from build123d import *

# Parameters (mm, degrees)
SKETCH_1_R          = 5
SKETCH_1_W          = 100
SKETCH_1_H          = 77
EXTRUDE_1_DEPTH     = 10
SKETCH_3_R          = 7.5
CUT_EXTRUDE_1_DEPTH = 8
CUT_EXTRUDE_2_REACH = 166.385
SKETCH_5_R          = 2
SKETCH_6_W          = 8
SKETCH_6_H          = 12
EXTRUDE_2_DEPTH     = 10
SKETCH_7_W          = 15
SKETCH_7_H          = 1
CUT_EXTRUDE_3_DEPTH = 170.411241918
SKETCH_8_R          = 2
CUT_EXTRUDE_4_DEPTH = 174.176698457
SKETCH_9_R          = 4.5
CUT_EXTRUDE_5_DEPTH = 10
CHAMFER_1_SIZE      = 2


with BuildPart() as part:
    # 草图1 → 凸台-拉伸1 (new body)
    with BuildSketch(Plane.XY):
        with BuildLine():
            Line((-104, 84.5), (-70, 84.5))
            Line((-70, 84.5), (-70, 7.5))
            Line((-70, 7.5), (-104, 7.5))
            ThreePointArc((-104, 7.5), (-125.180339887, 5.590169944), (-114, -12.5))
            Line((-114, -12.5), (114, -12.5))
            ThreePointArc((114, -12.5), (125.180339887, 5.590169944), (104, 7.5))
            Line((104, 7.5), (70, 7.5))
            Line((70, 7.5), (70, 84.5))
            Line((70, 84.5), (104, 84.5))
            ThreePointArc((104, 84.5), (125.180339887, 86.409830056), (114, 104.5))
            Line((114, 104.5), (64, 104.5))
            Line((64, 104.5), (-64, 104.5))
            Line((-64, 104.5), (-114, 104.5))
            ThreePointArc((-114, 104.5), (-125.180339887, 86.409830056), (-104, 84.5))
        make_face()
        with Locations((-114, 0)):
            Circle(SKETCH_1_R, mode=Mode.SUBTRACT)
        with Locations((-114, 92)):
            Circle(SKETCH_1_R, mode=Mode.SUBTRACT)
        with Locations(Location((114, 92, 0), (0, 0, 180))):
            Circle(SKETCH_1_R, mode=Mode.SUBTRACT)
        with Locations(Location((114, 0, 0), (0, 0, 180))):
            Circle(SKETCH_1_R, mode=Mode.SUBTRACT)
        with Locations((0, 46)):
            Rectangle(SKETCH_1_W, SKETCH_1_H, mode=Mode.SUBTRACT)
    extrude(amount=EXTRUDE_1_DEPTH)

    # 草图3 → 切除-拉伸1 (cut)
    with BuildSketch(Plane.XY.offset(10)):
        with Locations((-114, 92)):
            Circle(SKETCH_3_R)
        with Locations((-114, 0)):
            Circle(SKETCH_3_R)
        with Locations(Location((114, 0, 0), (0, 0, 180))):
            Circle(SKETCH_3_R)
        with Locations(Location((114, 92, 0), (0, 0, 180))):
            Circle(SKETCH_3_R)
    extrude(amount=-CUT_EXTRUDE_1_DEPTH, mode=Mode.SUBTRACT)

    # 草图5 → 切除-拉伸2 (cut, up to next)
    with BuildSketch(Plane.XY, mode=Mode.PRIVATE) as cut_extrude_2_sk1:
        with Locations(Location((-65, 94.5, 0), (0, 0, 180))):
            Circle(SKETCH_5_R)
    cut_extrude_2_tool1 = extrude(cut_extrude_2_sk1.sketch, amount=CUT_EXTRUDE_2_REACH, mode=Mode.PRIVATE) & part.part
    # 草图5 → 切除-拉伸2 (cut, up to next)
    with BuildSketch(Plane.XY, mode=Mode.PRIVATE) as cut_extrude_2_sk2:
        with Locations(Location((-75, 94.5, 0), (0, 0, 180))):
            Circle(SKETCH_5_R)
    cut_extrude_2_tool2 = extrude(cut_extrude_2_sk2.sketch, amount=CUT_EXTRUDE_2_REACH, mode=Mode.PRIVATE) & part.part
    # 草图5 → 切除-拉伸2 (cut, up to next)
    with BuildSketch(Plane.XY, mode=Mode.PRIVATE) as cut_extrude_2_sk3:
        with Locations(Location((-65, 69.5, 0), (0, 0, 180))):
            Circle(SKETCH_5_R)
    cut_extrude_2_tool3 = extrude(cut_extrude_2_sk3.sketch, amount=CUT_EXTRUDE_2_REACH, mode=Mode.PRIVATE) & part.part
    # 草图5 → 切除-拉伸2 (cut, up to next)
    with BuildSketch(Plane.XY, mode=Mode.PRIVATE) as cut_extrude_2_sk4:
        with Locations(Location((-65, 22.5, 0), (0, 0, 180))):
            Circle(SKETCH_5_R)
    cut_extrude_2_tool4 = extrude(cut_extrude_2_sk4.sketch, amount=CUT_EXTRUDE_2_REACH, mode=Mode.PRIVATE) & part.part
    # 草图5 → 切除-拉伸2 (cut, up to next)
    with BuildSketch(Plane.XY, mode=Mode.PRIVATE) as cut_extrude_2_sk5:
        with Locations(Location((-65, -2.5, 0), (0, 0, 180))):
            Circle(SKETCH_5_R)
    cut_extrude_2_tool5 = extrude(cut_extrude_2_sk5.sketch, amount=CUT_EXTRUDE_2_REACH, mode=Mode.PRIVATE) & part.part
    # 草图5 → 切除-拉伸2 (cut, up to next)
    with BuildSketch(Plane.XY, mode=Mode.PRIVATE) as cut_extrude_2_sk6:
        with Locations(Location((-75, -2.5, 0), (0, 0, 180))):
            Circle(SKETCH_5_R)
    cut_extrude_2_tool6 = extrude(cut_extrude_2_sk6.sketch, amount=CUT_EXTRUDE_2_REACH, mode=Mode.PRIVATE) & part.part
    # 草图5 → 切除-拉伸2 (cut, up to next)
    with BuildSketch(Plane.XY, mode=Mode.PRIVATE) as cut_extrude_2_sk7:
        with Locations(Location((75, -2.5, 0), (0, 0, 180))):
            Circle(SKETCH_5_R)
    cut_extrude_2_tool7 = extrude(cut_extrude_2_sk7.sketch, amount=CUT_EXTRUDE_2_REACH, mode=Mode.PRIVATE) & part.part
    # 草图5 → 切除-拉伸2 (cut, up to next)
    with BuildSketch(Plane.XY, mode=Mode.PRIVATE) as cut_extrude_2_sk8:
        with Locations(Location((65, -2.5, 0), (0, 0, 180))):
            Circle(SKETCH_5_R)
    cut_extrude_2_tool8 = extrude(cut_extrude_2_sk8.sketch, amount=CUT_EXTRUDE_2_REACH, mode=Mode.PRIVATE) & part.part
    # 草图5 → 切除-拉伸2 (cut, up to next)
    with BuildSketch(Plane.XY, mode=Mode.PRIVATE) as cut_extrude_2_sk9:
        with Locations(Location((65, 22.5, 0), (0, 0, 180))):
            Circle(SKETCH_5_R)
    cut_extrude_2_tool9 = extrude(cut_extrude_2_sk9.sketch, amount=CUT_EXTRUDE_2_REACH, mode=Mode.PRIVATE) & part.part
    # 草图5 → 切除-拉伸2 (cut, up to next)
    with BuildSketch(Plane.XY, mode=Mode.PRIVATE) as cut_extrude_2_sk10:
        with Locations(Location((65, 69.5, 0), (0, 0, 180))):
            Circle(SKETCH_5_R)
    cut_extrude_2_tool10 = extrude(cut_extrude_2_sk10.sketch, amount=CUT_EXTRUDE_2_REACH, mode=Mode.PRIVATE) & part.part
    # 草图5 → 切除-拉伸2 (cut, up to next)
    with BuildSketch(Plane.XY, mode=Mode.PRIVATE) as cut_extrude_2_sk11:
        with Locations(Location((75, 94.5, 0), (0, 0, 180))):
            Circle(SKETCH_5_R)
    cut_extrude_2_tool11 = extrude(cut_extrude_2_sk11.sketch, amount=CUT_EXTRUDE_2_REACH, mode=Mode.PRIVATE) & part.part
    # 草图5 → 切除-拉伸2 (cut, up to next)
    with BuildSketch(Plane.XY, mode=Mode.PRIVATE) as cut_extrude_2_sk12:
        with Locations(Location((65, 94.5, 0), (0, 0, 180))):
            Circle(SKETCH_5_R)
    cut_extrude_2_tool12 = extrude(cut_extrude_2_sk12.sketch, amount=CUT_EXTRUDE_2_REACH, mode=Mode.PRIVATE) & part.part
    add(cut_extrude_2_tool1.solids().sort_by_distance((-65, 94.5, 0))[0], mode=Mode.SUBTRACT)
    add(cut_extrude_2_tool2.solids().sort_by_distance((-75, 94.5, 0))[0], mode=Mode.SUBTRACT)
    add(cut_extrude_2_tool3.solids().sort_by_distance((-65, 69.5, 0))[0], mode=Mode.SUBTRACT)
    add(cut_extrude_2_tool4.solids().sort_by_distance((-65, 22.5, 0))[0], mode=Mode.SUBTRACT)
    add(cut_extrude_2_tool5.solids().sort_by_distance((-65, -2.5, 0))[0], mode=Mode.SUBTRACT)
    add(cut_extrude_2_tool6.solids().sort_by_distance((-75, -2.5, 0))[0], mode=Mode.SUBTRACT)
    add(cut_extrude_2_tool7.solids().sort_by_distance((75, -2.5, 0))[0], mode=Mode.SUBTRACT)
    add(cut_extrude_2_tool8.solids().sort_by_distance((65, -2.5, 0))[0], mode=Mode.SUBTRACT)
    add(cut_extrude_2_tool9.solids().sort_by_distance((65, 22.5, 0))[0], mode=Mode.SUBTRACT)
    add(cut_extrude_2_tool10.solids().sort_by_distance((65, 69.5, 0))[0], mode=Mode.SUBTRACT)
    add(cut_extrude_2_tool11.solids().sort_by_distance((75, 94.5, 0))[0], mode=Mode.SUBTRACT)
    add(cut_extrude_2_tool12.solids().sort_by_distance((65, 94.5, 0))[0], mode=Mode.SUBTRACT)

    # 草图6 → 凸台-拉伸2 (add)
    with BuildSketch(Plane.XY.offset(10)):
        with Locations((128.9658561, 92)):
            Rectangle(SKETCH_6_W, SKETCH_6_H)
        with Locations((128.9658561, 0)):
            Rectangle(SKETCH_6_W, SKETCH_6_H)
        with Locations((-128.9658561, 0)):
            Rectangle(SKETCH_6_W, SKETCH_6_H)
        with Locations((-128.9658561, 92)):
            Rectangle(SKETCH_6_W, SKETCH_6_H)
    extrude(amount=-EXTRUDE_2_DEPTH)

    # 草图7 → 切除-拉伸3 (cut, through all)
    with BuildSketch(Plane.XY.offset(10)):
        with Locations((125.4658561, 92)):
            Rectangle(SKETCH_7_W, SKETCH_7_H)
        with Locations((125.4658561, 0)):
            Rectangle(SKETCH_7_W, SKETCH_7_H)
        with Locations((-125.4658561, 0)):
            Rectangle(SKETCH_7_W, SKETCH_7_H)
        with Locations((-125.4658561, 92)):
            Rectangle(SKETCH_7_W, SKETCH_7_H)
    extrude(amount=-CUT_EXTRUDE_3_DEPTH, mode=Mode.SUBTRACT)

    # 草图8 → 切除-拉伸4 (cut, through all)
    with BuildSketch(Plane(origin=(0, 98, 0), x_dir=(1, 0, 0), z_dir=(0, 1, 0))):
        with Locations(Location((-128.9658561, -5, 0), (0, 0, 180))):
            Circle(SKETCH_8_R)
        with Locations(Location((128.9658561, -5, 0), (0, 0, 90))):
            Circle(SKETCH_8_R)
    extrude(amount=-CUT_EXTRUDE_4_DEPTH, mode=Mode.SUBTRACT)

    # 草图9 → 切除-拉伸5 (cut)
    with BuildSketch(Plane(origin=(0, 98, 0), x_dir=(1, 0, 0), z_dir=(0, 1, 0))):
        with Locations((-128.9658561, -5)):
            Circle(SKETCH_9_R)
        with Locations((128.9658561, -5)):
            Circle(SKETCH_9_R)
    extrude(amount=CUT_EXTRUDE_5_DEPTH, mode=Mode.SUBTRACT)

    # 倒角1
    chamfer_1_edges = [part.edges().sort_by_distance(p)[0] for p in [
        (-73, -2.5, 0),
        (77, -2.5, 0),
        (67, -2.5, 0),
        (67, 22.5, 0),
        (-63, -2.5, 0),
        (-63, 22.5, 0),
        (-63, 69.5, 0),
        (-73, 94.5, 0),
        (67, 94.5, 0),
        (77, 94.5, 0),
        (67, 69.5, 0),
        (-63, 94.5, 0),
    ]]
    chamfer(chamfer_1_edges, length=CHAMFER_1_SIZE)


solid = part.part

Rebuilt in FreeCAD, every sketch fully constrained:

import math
import FreeCAD as App
import Part
import Sketcher

V = App.Vector


def edges_at(feature, points):
    """Names of the edges that pass closest to the given points."""
    edges = feature.Shape.Edges
    near = lambda p: min(range(len(edges)), key=lambda i: edges[i].distToShape(Part.Vertex(*p))[0])
    return sorted({f"Edge{near(p) + 1}" for p in points})


def add_polygon(sketch, points):
    """Adds a closed chain of lines whose ends are joined by coincident constraints."""
    first, n = sketch.GeometryCount, len(points)
    for a, b in zip(points, points[1:] + points[:1]):
        sketch.addGeometry(Part.LineSegment(App.Vector(*a, 0), App.Vector(*b, 0)), False)
    for i in range(n):
        sketch.addConstraint(Sketcher.Constraint("Coincident", first + i, 2, first + (i + 1) % n, 1))

doc = App.newDocument("Part")
body = doc.addObject("PartDesign::Body", "Body")

# Sketch on XY plane
sketch1 = doc.addObject("Sketcher::SketchObject", "Sketch")
body.addObject(sketch1)
sketch1.AttachmentSupport = (doc.XY_Plane, [""])
sketch1.MapMode = "FlatFace"
sketch1.addGeometry(Part.LineSegment(V(-104, 84, 0), V(-70, 84, 0)), False)  # 0
sketch1.addGeometry(Part.LineSegment(V(-70, 84, 0), V(-70, 8, 0)), False)  # 1
sketch1.addGeometry(Part.LineSegment(V(-70, 8, 0), V(-104, 8, 0)), False)  # 2
sketch1.addGeometry(Part.ArcOfCircle(Part.Circle(V(-114, 0, 0), V(0, 0, 1), 12), math.radians(37), math.radians(270)), False)  # 3
sketch1.addGeometry(Part.LineSegment(V(-114, -12, 0), V(114, -12, 0)), False)  # 4
sketch1.addGeometry(Part.ArcOfCircle(Part.Circle(V(114, 0, 0), V(0, 0, 1), 12), math.radians(-90), math.radians(143)), False)  # 5
sketch1.addGeometry(Part.LineSegment(V(104, 8, 0), V(70, 8, 0)), False)  # 6
sketch1.addGeometry(Part.LineSegment(V(70, 8, 0), V(70, 84, 0)), False)  # 7
sketch1.addGeometry(Part.LineSegment(V(70, 84, 0), V(104, 84, 0)), False)  # 8
sketch1.addGeometry(Part.ArcOfCircle(Part.Circle(V(114, 92, 0), V(0, 0, 1), 12), math.radians(-143), math.radians(90)), False)  # 9
sketch1.addGeometry(Part.LineSegment(V(114, 104, 0), V(-114, 104, 0)), False)  # 10
sketch1.addGeometry(Part.ArcOfCircle(Part.Circle(V(-114, 92, 0), V(0, 0, 1), 12), math.radians(90), math.radians(323)), False)  # 11
sketch1.addGeometry(Part.Circle(V(-114, 0, 0), V(0, 0, 1), 5), False)  # 12
sketch1.addGeometry(Part.Circle(V(114, 0, 0), V(0, 0, 1), 5), False)  # 13
sketch1.addGeometry(Part.Circle(V(-114, 92, 0), V(0, 0, 1), 5), False)  # 14
add_polygon(sketch1, [(50, 8), (-50, 8), (-50, 84), (50, 84)])  # lines 15-18
sketch1.addGeometry(Part.Circle(V(114, 92, 0), V(0, 0, 1), 5), False)  # 19
sketch1.addConstraint([
    Sketcher.Constraint("Coincident", 0, 2, 1, 1),
    Sketcher.Constraint("Coincident", 1, 2, 2, 1),
    Sketcher.Constraint("Coincident", 2, 2, 3, 1),
    Sketcher.Constraint("Tangent", 3, 2, 4, 1),
    Sketcher.Constraint("Tangent", 4, 2, 5, 1),
    Sketcher.Constraint("Coincident", 5, 2, 6, 1),
    Sketcher.Constraint("Coincident", 6, 2, 7, 1),
    Sketcher.Constraint("Coincident", 7, 2, 8, 1),
    Sketcher.Constraint("Coincident", 8, 2, 9, 1),
    Sketcher.Constraint("Tangent", 9, 2, 10, 1),
    Sketcher.Constraint("Tangent", 10, 2, 11, 1),
    Sketcher.Constraint("Coincident", 11, 2, 0, 1),
    Sketcher.Constraint("Horizontal", 0),
    Sketcher.Constraint("Vertical", 1),
    Sketcher.Constraint("Horizontal", 2),
    Sketcher.Constraint("Horizontal", 4),
    Sketcher.Constraint("Horizontal", 6),
    Sketcher.Constraint("Vertical", 7),
    Sketcher.Constraint("Horizontal", 8),
    Sketcher.Constraint("Horizontal", 10),
    Sketcher.Constraint("Horizontal", 15),
    Sketcher.Constraint("Vertical", 16),
    Sketcher.Constraint("Horizontal", 17),
    Sketcher.Constraint("Vertical", 18),
    Sketcher.Constraint("Coincident", 12, 3, 3, 3),
    Sketcher.Constraint("Coincident", 13, 3, 5, 3),
    Sketcher.Constraint("Coincident", 14, 3, 11, 3),
    Sketcher.Constraint("Coincident", 19, 3, 9, 3),
    Sketcher.Constraint("Equal", 3, 5),
    Sketcher.Constraint("Equal", 5, 9),
    Sketcher.Constraint("Equal", 9, 11),
    Sketcher.Constraint("Equal", 12, 13),
    Sketcher.Constraint("Equal", 13, 14),
    Sketcher.Constraint("Equal", 14, 19),
    Sketcher.Constraint("Symmetric", 3, 3, 5, 3, -1, 1),
    Sketcher.Constraint("Symmetric", 1, 2, 6, 2, -2),
    Sketcher.Constraint("Symmetric", 8, 2, 11, 2, -2),
    Sketcher.Constraint("Horizontal", 6, 2, 15, 2),
    Sketcher.Constraint("Horizontal", 11, 2, 16, 2),
    Sketcher.Constraint("Vertical", 5, 3, 9, 3),
    Sketcher.Constraint("Vertical", 5, 2, 8, 2),
    Sketcher.Constraint("Diameter", 12, 10.0),
    Sketcher.Constraint("Radius", 3, 12.5),
    Sketcher.Constraint("DistanceX", 0, 1, 0, 2, 34.0),
    Sketcher.Constraint("DistanceX", 4, 1, 4, 2, 228.0),
    Sketcher.Constraint("DistanceX", 15, 2, 15, 1, 100.0),
    Sketcher.Constraint("DistanceY", 1, 2, 1, 1, 77.0),
    Sketcher.Constraint("DistanceY", -1, 1, 9, 3, 92.0),
    Sketcher.Constraint("DistanceX", 15, 2, -1, 1, 50.0),
])
pad1 = doc.addObject("PartDesign::Pad", "Pad")
body.addObject(pad1)
pad1.Profile = sketch1
pad1.Length = 10

# Sketch on XY plane
sketch2 = doc.addObject("Sketcher::SketchObject", "Sketch001")
body.addObject(sketch2)
sketch2.AttachmentSupport = (doc.XY_Plane, [""])
sketch2.MapMode = "FlatFace"
sketch2.AttachmentOffset = App.Placement(V(0, 0, 10), App.Rotation())
sketch2.addGeometry([
    Part.Circle(V(-114, 92, 0), V(0, 0, 1), 8),
    Part.Circle(V(-114, 0, 0), V(0, 0, 1), 8),
    Part.Circle(V(114, 0, 0), V(0, 0, 1), 8),
    Part.Circle(V(114, 92, 0), V(0, 0, 1), 8),
], False)
sketch2.addConstraint([
    Sketcher.Constraint("Equal", 0, 1),
    Sketcher.Constraint("Equal", 1, 2),
    Sketcher.Constraint("Equal", 2, 3),
    Sketcher.Constraint("Symmetric", 1, 3, 2, 3, -1, 1),
    Sketcher.Constraint("Symmetric", 0, 3, 3, 3, -2),
    Sketcher.Constraint("PointOnObject", 1, 3, -1),
    Sketcher.Constraint("Vertical", 0, 3, 1, 3),
    Sketcher.Constraint("Diameter", 0, 15.0),
    Sketcher.Constraint("DistanceX", 0, 3, -1, 1, 114.0),
    Sketcher.Constraint("DistanceY", -1, 1, 0, 3, 92.0),
])
pocket1 = doc.addObject("PartDesign::Pocket", "Pocket")
body.addObject(pocket1)
pocket1.Profile = sketch2
pocket1.Length = 8

# Sketch on XY plane
sketch3 = doc.addObject("Sketcher::SketchObject", "Sketch002")
body.addObject(sketch3)
sketch3.AttachmentSupport = (doc.XY_Plane, [""])
sketch3.MapMode = "FlatFace"
sketch3.addGeometry(Part.Circle(V(-65, 94.5, 0), V(0, 0, 1), 2), False)
sketch3.addConstraint([
    Sketcher.Constraint("Diameter", 0, 4.0),
    Sketcher.Constraint("DistanceX", 0, 3, -1, 1, 65.0),
    Sketcher.Constraint("DistanceY", -1, 1, 0, 3, 94.5),
])
pocket2 = doc.addObject("PartDesign::Pocket", "Pocket001")
body.addObject(pocket2)
pocket2.Profile = sketch3
pocket2.Type = "UpToFirst"
pocket2.Reversed = True

# Sketch on XY plane
sketch4 = doc.addObject("Sketcher::SketchObject", "Sketch003")
body.addObject(sketch4)
sketch4.AttachmentSupport = (doc.XY_Plane, [""])
sketch4.MapMode = "FlatFace"
sketch4.addGeometry(Part.Circle(V(-75, 94.5, 0), V(0, 0, 1), 2), False)
sketch4.addConstraint([
    Sketcher.Constraint("Diameter", 0, 4.0),
    Sketcher.Constraint("DistanceX", 0, 3, -1, 1, 75.0),
    Sketcher.Constraint("DistanceY", -1, 1, 0, 3, 94.5),
])
pocket3 = doc.addObject("PartDesign::Pocket", "Pocket002")
body.addObject(pocket3)
pocket3.Profile = sketch4
pocket3.Type = "UpToFirst"
pocket3.Reversed = True

# Sketch on XY plane
sketch5 = doc.addObject("Sketcher::SketchObject", "Sketch004")
body.addObject(sketch5)
sketch5.AttachmentSupport = (doc.XY_Plane, [""])
sketch5.MapMode = "FlatFace"
sketch5.addGeometry(Part.Circle(V(-65, 69.5, 0), V(0, 0, 1), 2), False)
sketch5.addConstraint([
    Sketcher.Constraint("Diameter", 0, 4.0),
    Sketcher.Constraint("DistanceX", 0, 3, -1, 1, 65.0),
    Sketcher.Constraint("DistanceY", -1, 1, 0, 3, 69.5),
])
pocket4 = doc.addObject("PartDesign::Pocket", "Pocket003")
body.addObject(pocket4)
pocket4.Profile = sketch5
pocket4.Type = "UpToFirst"
pocket4.Reversed = True

# Sketch on XY plane
sketch6 = doc.addObject("Sketcher::SketchObject", "Sketch005")
body.addObject(sketch6)
sketch6.AttachmentSupport = (doc.XY_Plane, [""])
sketch6.MapMode = "FlatFace"
sketch6.addGeometry(Part.Circle(V(-65, 22.5, 0), V(0, 0, 1), 2), False)
sketch6.addConstraint([
    Sketcher.Constraint("Diameter", 0, 4.0),
    Sketcher.Constraint("DistanceX", 0, 3, -1, 1, 65.0),
    Sketcher.Constraint("DistanceY", -1, 1, 0, 3, 22.5),
])
pocket5 = doc.addObject("PartDesign::Pocket", "Pocket004")
body.addObject(pocket5)
pocket5.Profile = sketch6
pocket5.Type = "UpToFirst"
pocket5.Reversed = True

# Sketch on XY plane
sketch7 = doc.addObject("Sketcher::SketchObject", "Sketch006")
body.addObject(sketch7)
sketch7.AttachmentSupport = (doc.XY_Plane, [""])
sketch7.MapMode = "FlatFace"
sketch7.addGeometry(Part.Circle(V(-65, -2.5, 0), V(0, 0, 1), 2), False)
sketch7.addConstraint([
    Sketcher.Constraint("Diameter", 0, 4.0),
    Sketcher.Constraint("DistanceX", 0, 3, -1, 1, 65.0),
    Sketcher.Constraint("DistanceY", 0, 3, -1, 1, 2.5),
])
pocket6 = doc.addObject("PartDesign::Pocket", "Pocket005")
body.addObject(pocket6)
pocket6.Profile = sketch7
pocket6.Type = "UpToFirst"
pocket6.Reversed = True

# Sketch on XY plane
sketch8 = doc.addObject("Sketcher::SketchObject", "Sketch007")
body.addObject(sketch8)
sketch8.AttachmentSupport = (doc.XY_Plane, [""])
sketch8.MapMode = "FlatFace"
sketch8.addGeometry(Part.Circle(V(-75, -2.5, 0), V(0, 0, 1), 2), False)
sketch8.addConstraint([
    Sketcher.Constraint("Diameter", 0, 4.0),
    Sketcher.Constraint("DistanceX", 0, 3, -1, 1, 75.0),
    Sketcher.Constraint("DistanceY", 0, 3, -1, 1, 2.5),
])
pocket7 = doc.addObject("PartDesign::Pocket", "Pocket006")
body.addObject(pocket7)
pocket7.Profile = sketch8
pocket7.Type = "UpToFirst"
pocket7.Reversed = True

# Sketch on XY plane
sketch9 = doc.addObject("Sketcher::SketchObject", "Sketch008")
body.addObject(sketch9)
sketch9.AttachmentSupport = (doc.XY_Plane, [""])
sketch9.MapMode = "FlatFace"
sketch9.addGeometry(Part.Circle(V(75, -2.5, 0), V(0, 0, 1), 2), False)
sketch9.addConstraint([
    Sketcher.Constraint("Diameter", 0, 4.0),
    Sketcher.Constraint("DistanceX", -1, 1, 0, 3, 75.0),
    Sketcher.Constraint("DistanceY", 0, 3, -1, 1, 2.5),
])
pocket8 = doc.addObject("PartDesign::Pocket", "Pocket007")
body.addObject(pocket8)
pocket8.Profile = sketch9
pocket8.Type = "UpToFirst"
pocket8.Reversed = True

# Sketch on XY plane
sketch10 = doc.addObject("Sketcher::SketchObject", "Sketch009")
body.addObject(sketch10)
sketch10.AttachmentSupport = (doc.XY_Plane, [""])
sketch10.MapMode = "FlatFace"
sketch10.addGeometry(Part.Circle(V(65, -2.5, 0), V(0, 0, 1), 2), False)
sketch10.addConstraint([
    Sketcher.Constraint("Diameter", 0, 4.0),
    Sketcher.Constraint("DistanceX", -1, 1, 0, 3, 65.0),
    Sketcher.Constraint("DistanceY", 0, 3, -1, 1, 2.5),
])
pocket9 = doc.addObject("PartDesign::Pocket", "Pocket008")
body.addObject(pocket9)
pocket9.Profile = sketch10
pocket9.Type = "UpToFirst"
pocket9.Reversed = True

# Sketch on XY plane
sketch11 = doc.addObject("Sketcher::SketchObject", "Sketch010")
body.addObject(sketch11)
sketch11.AttachmentSupport = (doc.XY_Plane, [""])
sketch11.MapMode = "FlatFace"
sketch11.addGeometry(Part.Circle(V(65, 22.5, 0), V(0, 0, 1), 2), False)
sketch11.addConstraint([
    Sketcher.Constraint("Diameter", 0, 4.0),
    Sketcher.Constraint("DistanceX", -1, 1, 0, 3, 65.0),
    Sketcher.Constraint("DistanceY", -1, 1, 0, 3, 22.5),
])
pocket10 = doc.addObject("PartDesign::Pocket", "Pocket009")
body.addObject(pocket10)
pocket10.Profile = sketch11
pocket10.Type = "UpToFirst"
pocket10.Reversed = True

# Sketch on XY plane
sketch12 = doc.addObject("Sketcher::SketchObject", "Sketch011")
body.addObject(sketch12)
sketch12.AttachmentSupport = (doc.XY_Plane, [""])
sketch12.MapMode = "FlatFace"
sketch12.addGeometry(Part.Circle(V(65, 69.5, 0), V(0, 0, 1), 2), False)
sketch12.addConstraint([
    Sketcher.Constraint("Diameter", 0, 4.0),
    Sketcher.Constraint("DistanceX", -1, 1, 0, 3, 65.0),
    Sketcher.Constraint("DistanceY", -1, 1, 0, 3, 69.5),
])
pocket11 = doc.addObject("PartDesign::Pocket", "Pocket010")
body.addObject(pocket11)
pocket11.Profile = sketch12
pocket11.Type = "UpToFirst"
pocket11.Reversed = True

# Sketch on XY plane
sketch13 = doc.addObject("Sketcher::SketchObject", "Sketch012")
body.addObject(sketch13)
sketch13.AttachmentSupport = (doc.XY_Plane, [""])
sketch13.MapMode = "FlatFace"
sketch13.addGeometry(Part.Circle(V(75, 94.5, 0), V(0, 0, 1), 2), False)
sketch13.addConstraint([
    Sketcher.Constraint("Diameter", 0, 4.0),
    Sketcher.Constraint("DistanceX", -1, 1, 0, 3, 75.0),
    Sketcher.Constraint("DistanceY", -1, 1, 0, 3, 94.5),
])
pocket12 = doc.addObject("PartDesign::Pocket", "Pocket011")
body.addObject(pocket12)
pocket12.Profile = sketch13
pocket12.Type = "UpToFirst"
pocket12.Reversed = True

# Sketch on XY plane
sketch14 = doc.addObject("Sketcher::SketchObject", "Sketch013")
body.addObject(sketch14)
sketch14.AttachmentSupport = (doc.XY_Plane, [""])
sketch14.MapMode = "FlatFace"
sketch14.addGeometry(Part.Circle(V(65, 94.5, 0), V(0, 0, 1), 2), False)
sketch14.addConstraint([
    Sketcher.Constraint("Diameter", 0, 4.0),
    Sketcher.Constraint("DistanceX", -1, 1, 0, 3, 65.0),
    Sketcher.Constraint("DistanceY", -1, 1, 0, 3, 94.5),
])
pocket13 = doc.addObject("PartDesign::Pocket", "Pocket012")
body.addObject(pocket13)
pocket13.Profile = sketch14
pocket13.Type = "UpToFirst"
pocket13.Reversed = True

# Sketch on XY plane
sketch15 = doc.addObject("Sketcher::SketchObject", "Sketch014")
body.addObject(sketch15)
sketch15.AttachmentSupport = (doc.XY_Plane, [""])
sketch15.MapMode = "FlatFace"
sketch15.AttachmentOffset = App.Placement(V(0, 0, 10), App.Rotation())
add_polygon(sketch15, [(125, 98), (125, 86), (133, 86), (133, 98)])  # lines 0-3
add_polygon(sketch15, [(125, 6), (125, -6), (133, -6), (133, 6)])  # lines 4-7
add_polygon(sketch15, [(-133, 6), (-133, -6), (-125, -6), (-125, 6)])  # lines 8-11
add_polygon(sketch15, [(-133, 98), (-133, 86), (-125, 86), (-125, 98)])  # lines 12-15
sketch15.addConstraint([
    Sketcher.Constraint("Vertical", 0),
    Sketcher.Constraint("Horizontal", 1),
    Sketcher.Constraint("Vertical", 2),
    Sketcher.Constraint("Horizontal", 3),
    Sketcher.Constraint("Vertical", 4),
    Sketcher.Constraint("Horizontal", 5),
    Sketcher.Constraint("Vertical", 6),
    Sketcher.Constraint("Horizontal", 7),
    Sketcher.Constraint("Vertical", 8),
    Sketcher.Constraint("Horizontal", 9),
    Sketcher.Constraint("Vertical", 10),
    Sketcher.Constraint("Horizontal", 11),
    Sketcher.Constraint("Vertical", 12),
    Sketcher.Constraint("Horizontal", 13),
    Sketcher.Constraint("Vertical", 14),
    Sketcher.Constraint("Horizontal", 15),
    Sketcher.Constraint("Symmetric", 6, 2, 8, 2, -1, 1),
    Sketcher.Constraint("Symmetric", 4, 2, 10, 2, -1, 1),
    Sketcher.Constraint("Symmetric", 1, 2, 12, 2, -2),
    Sketcher.Constraint("Symmetric", 3, 2, 14, 2, -2),
    Sketcher.Constraint("Horizontal", 5, 2, 8, 2),
    Sketcher.Constraint("Vertical", 3, 2, 4, 2),
    Sketcher.Constraint("Vertical", 2, 2, 5, 2),
    Sketcher.Constraint("Equal", 2, 4),
    Sketcher.Constraint("DistanceX", 1, 1, 1, 2, 8.0),
    Sketcher.Constraint("DistanceY", 0, 2, 0, 1, 12.0),
    Sketcher.Constraint("DistanceY", -1, 1, 0, 2, 86.0),
    Sketcher.Constraint("DistanceX", -1, 1, 0, 2, 124.965856),
])
pad2 = doc.addObject("PartDesign::Pad", "Pad001")
body.addObject(pad2)
pad2.Profile = sketch15
pad2.Length = 10
pad2.Reversed = True

# Sketch on XY plane
sketch16 = doc.addObject("Sketcher::SketchObject", "Sketch015")
body.addObject(sketch16)
sketch16.AttachmentSupport = (doc.XY_Plane, [""])
sketch16.MapMode = "FlatFace"
sketch16.AttachmentOffset = App.Placement(V(0, 0, 10), App.Rotation())
add_polygon(sketch16, [(118, 92.5), (118, 91.5), (133, 91.5), (133, 92.5)])  # lines 0-3
add_polygon(sketch16, [(118, 0.5), (118, -0.5), (133, -0.5), (133, 0.5)])  # lines 4-7
add_polygon(sketch16, [(-133, 0.5), (-133, -0.5), (-118, -0.5), (-118, 0.5)])  # lines 8-11
add_polygon(sketch16, [(-133, 92.5), (-133, 91.5), (-118, 91.5), (-118, 92.5)])  # lines 12-15
sketch16.addConstraint([
    Sketcher.Constraint("Vertical", 0),
    Sketcher.Constraint("Horizontal", 1),
    Sketcher.Constraint("Vertical", 2),
    Sketcher.Constraint("Horizontal", 3),
    Sketcher.Constraint("Vertical", 4),
    Sketcher.Constraint("Horizontal", 5),
    Sketcher.Constraint("Vertical", 6),
    Sketcher.Constraint("Horizontal", 7),
    Sketcher.Constraint("Vertical", 8),
    Sketcher.Constraint("Horizontal", 9),
    Sketcher.Constraint("Vertical", 10),
    Sketcher.Constraint("Horizontal", 11),
    Sketcher.Constraint("Vertical", 12),
    Sketcher.Constraint("Horizontal", 13),
    Sketcher.Constraint("Vertical", 14),
    Sketcher.Constraint("Horizontal", 15),
    Sketcher.Constraint("Symmetric", 6, 2, 8, 2, -1, 1),
    Sketcher.Constraint("Symmetric", 4, 2, 10, 2, -1, 1),
    Sketcher.Constraint("Symmetric", 1, 2, 12, 2, -2),
    Sketcher.Constraint("Symmetric", 3, 2, 14, 2, -2),
    Sketcher.Constraint("Horizontal", 5, 2, 8, 2),
    Sketcher.Constraint("Vertical", 3, 2, 4, 2),
    Sketcher.Constraint("Vertical", 2, 2, 5, 2),
    Sketcher.Constraint("Equal", 2, 4),
    Sketcher.Constraint("DistanceX", 1, 1, 1, 2, 15.0),
    Sketcher.Constraint("DistanceY", 0, 2, 0, 1, 1.0),
    Sketcher.Constraint("DistanceY", 4, 2, 0, 2, 92.0),
    Sketcher.Constraint("DistanceX", -1, 1, 0, 2, 117.965856),
])
pocket14 = doc.addObject("PartDesign::Pocket", "Pocket013")
body.addObject(pocket14)
pocket14.Profile = sketch16
pocket14.Type = "ThroughAll"

# Sketch on XZ plane
sketch17 = doc.addObject("Sketcher::SketchObject", "Sketch016")
body.addObject(sketch17)
sketch17.AttachmentSupport = (doc.XZ_Plane, [""])
sketch17.MapMode = "FlatFace"
sketch17.AttachmentOffset = App.Placement(V(0, 0, -98), App.Rotation())
sketch17.addGeometry([
    Part.Circle(V(-129, 5, 0), V(0, 0, 1), 2),
    Part.Circle(V(129, 5, 0), V(0, 0, 1), 2),
], False)
sketch17.addConstraint([
    Sketcher.Constraint("Equal", 0, 1),
    Sketcher.Constraint("Symmetric", 0, 3, 1, 3, -2),
    Sketcher.Constraint("Diameter", 0, 4.0),
    Sketcher.Constraint("DistanceY", -1, 1, 0, 3, 5.0),
    Sketcher.Constraint("DistanceX", 0, 3, -1, 1, 128.965856),
])
pocket15 = doc.addObject("PartDesign::Pocket", "Pocket014")
body.addObject(pocket15)
pocket15.Profile = sketch17
pocket15.Type = "ThroughAll"
pocket15.Reversed = True

# Sketch on XZ plane
sketch18 = doc.addObject("Sketcher::SketchObject", "Sketch017")
body.addObject(sketch18)
sketch18.AttachmentSupport = (doc.XZ_Plane, [""])
sketch18.MapMode = "FlatFace"
sketch18.AttachmentOffset = App.Placement(V(0, 0, -98), App.Rotation())
sketch18.addGeometry([
    Part.Circle(V(-129, 5, 0), V(0, 0, 1), 4.5),
    Part.Circle(V(129, 5, 0), V(0, 0, 1), 4.5),
], False)
sketch18.addConstraint([
    Sketcher.Constraint("Equal", 0, 1),
    Sketcher.Constraint("Symmetric", 0, 3, 1, 3, -2),
    Sketcher.Constraint("Diameter", 0, 9.0),
    Sketcher.Constraint("DistanceY", -1, 1, 0, 3, 5.0),
    Sketcher.Constraint("DistanceX", 0, 3, -1, 1, 128.965856),
])
pocket16 = doc.addObject("PartDesign::Pocket", "Pocket015")
body.addObject(pocket16)
pocket16.Profile = sketch18
pocket16.Length = 10
doc.recompute()

chamfer = doc.addObject("PartDesign::Chamfer", "Chamfer")
body.addObject(chamfer)
chamfer.Base = (pocket16, edges_at(pocket16, [
    (-73, -2.5, 0),
    (77, -2.5, 0),
    (67, -2.5, 0),
    (67, 22.5, 0),
    (-63, -2.5, 0),
    (-63, 22.5, 0),
    (-63, 69.5, 0),
    (-73, 94.5, 0),
    (67, 94.5, 0),
    (77, 94.5, 0),
    (67, 69.5, 0),
    (-63, 94.5, 0),
]))
chamfer.Size = 2

doc.recompute()
